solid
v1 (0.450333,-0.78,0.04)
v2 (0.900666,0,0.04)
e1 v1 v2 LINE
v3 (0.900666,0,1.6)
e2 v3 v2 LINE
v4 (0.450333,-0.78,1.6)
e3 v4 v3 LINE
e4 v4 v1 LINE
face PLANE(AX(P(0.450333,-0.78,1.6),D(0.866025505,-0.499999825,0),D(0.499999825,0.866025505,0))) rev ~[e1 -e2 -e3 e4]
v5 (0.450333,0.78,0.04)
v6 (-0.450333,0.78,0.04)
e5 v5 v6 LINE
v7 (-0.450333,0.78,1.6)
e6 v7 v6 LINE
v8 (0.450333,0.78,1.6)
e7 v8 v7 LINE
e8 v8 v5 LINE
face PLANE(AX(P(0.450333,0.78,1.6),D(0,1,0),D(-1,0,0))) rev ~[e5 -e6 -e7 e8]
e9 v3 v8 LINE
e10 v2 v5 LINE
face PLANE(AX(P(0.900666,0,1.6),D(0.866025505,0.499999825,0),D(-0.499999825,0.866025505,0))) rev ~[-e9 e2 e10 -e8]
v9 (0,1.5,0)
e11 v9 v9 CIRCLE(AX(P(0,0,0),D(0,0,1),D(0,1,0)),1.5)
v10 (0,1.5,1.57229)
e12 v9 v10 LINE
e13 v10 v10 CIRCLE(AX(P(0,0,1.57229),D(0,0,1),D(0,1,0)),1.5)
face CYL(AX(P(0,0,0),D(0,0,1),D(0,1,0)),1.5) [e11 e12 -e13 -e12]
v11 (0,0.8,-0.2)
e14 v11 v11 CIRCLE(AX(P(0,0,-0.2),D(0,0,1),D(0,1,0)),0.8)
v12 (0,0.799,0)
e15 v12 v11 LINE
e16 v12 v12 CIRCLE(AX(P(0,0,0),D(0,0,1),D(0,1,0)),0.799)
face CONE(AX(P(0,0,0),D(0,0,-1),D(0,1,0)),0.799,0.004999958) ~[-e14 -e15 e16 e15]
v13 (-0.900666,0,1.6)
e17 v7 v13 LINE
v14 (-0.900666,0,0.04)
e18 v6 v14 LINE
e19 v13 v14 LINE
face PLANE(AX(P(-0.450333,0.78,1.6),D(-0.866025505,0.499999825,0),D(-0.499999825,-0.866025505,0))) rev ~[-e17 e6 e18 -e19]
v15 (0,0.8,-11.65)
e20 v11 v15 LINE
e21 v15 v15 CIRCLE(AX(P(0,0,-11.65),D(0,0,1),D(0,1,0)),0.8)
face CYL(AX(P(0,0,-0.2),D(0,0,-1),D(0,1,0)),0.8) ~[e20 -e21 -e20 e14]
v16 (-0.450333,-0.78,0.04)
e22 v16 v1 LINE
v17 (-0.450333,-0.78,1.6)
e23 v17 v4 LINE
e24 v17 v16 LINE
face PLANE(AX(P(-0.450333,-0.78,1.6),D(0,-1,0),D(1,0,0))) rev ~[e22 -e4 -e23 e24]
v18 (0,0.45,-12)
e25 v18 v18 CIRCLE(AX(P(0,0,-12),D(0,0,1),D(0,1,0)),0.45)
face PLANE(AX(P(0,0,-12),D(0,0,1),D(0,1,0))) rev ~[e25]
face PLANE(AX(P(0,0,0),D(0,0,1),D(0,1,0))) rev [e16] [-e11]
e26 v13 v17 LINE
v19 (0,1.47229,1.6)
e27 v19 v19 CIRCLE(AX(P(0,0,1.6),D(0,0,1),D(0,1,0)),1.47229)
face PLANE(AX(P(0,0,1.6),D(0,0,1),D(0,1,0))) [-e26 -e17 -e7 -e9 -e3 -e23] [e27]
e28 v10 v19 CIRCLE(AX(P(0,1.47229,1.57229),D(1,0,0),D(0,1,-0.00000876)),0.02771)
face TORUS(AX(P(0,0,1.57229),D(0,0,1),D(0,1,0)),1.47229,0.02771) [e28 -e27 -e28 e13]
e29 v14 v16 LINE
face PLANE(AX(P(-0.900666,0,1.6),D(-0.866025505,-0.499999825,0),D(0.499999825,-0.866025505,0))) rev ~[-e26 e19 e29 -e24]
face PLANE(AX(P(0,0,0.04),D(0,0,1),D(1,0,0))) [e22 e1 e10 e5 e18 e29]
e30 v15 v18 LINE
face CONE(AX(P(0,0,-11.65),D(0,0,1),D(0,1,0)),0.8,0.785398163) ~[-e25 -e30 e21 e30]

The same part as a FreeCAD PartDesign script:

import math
import FreeCAD as App
import Part
import Sketcher
from FreeCAD import Vector
Q = App.Units.Quantity


def add_polygon(sketch, points):
    """Adds a closed chain of lines whose ends are joined by coincident constraints."""
    first, n = sketch.GeometryCount, len(points)
    for a, b in zip(points, points[1:] + points[:1]):
        sketch.addGeometry(Part.LineSegment(App.Vector(*a, 0), App.Vector(*b, 0)), False)
    for i in range(n):
        sketch.addConstraint(Sketcher.Constraint("Coincident", first + i, 2, first + (i + 1) % n, 1))

doc = App.newDocument("Part")
body = doc.addObject("PartDesign::Body", "Body")

# Sketch on YZ plane
sketch1 = body.newObject("Sketcher::SketchObject", "Sketch")
sketch1.AttachmentSupport = (doc.getObject("YZ_Plane"), [""])
sketch1.MapMode = "FlatFace"
sketch1.addGeometry([
    Part.LineSegment(Vector(0.799, 0, 0), Vector(1.5, 0, 0)),  # 0
    Part.LineSegment(Vector(1.5, 0, 0), Vector(1.5, 1.572, 0)),  # 1
    Part.ArcOfCircle(Part.Circle(Vector(1.472, 1.572, 0), Vector(0, 0, 1), 0.028), math.radians(0), math.radians(90)),  # 2
    Part.LineSegment(Vector(1.472, 1.6, 0), Vector(0, 1.6, 0)),  # 3
    Part.LineSegment(Vector(0, 1.6, 0), Vector(0, -12, 0)),  # 4
    Part.LineSegment(Vector(0, -12, 0), Vector(0.45, -12, 0)),  # 5
    Part.LineSegment(Vector(0.45, -12, 0), Vector(0.8, -11.65, 0)),  # 6
    Part.LineSegment(Vector(0.8, -11.65, 0), Vector(0.8, -0.2, 0)),  # 7
    Part.LineSegment(Vector(0.8, -0.2, 0), Vector(0.799, 0, 0)),  # 8
], False)
sketch1.addConstraint([
    Sketcher.Constraint("Coincident", 0, 2, 1, 1),
    Sketcher.Constraint("Coincident", 1, 2, 2, 1),
    Sketcher.Constraint("Coincident", 2, 2, 3, 1),
    Sketcher.Constraint("Coincident", 3, 2, 4, 1),
    Sketcher.Constraint("Coincident", 4, 2, 5, 1),
    Sketcher.Constraint("Coincident", 5, 2, 6, 1),
    Sketcher.Constraint("Coincident", 6, 2, 7, 1),
    Sketcher.Constraint("Coincident", 7, 2, 8, 1),
    Sketcher.Constraint("Coincident", 8, 2, 0, 1),
    Sketcher.Constraint("Horizontal", 0),
    Sketcher.Constraint("Vertical", 1),
    Sketcher.Constraint("Horizontal", 3),
    Sketcher.Constraint("Vertical", 4),
    Sketcher.Constraint("Horizontal", 5),
    Sketcher.Constraint("Vertical", 7),
    Sketcher.Constraint("PointOnObject", 0, 2, -1),
    Sketcher.Constraint("PointOnObject", 3, 2, -2),
    Sketcher.Constraint("Horizontal", 2, 3, 1, 2),
    Sketcher.Constraint("Angle", 6, Q("45 deg")),
    Sketcher.Constraint("DistanceY", 4, 2, 4, 1, Q("13.6 mm")),
    Sketcher.Constraint("DistanceY", 4, 2, -1, 1, Q("12 mm")),
    Sketcher.Constraint("DistanceX", 5, 1, 5, 2, Q("0.45 mm")),
    Sketcher.Constraint("DistanceY", 7, 1, 7, 2, Q("11.45 mm")),
    Sketcher.Constraint("DistanceX", -1, 1, 0, 2, Q("1.5 mm")),
    Sketcher.Constraint("DistanceX", -1, 1, 6, 2, Q("0.8 mm")),
    Sketcher.Constraint("DistanceX", 0, 1, 0, 2, Q("0.701 mm")),
    Sketcher.Constraint("Radius", 2, Q("0.02771 mm")),
    Sketcher.Constraint("DistanceX", 3, 2, 3, 1, Q("1.47229 mm")),
])
revolution = body.newObject("PartDesign::Revolution", "Revolution")
revolution.Profile = sketch1
revolution.ReferenceAxis = (sketch1, ["V_Axis"])
revolution.Angle = 360

# Sketch on XY plane
sketch2 = body.newObject("Sketcher::SketchObject", "Sketch001")
sketch2.AttachmentSupport = (doc.getObject("XY_Plane"), [""])
sketch2.MapMode = "FlatFace"
sketch2.AttachmentOffset = App.Placement(Vector(0, 0, 1.6), App.Rotation())
add_polygon(sketch2, [(0.9, 0), (0.5, 0.8), (-0.5, 0.8), (-0.9, 0), (-0.5, -0.8), (0.5, -0.8)])  # lines 0-5
sketch2.addConstraint([
    Sketcher.Constraint("Horizontal", 1),
    Sketcher.Constraint("Horizontal", 4),
    Sketcher.Constraint("Symmetric", 0, 2, 3, 2, -1, 1),
    Sketcher.Constraint("Symmetric", 2, 2, 5, 2, -1, 1),
    Sketcher.Constraint("PointOnObject", 2, 2, -1),
    Sketcher.Constraint("Parallel", 2, 5),
    Sketcher.Constraint("Vertical", 1, 2, 3, 2),
    Sketcher.Constraint("Angle", 0, Q("119.999988 deg")),
    Sketcher.Constraint("DistanceY", -1, 1, 0, 2, Q("0.78 mm")),
    Sketcher.Constraint("DistanceX", 2, 2, 0, 2, Q("1.350999 mm")),
])
pocket1 = body.newObject("PartDesign::Pocket", "Pocket")
pocket1.Profile = sketch2
pocket1.Length = 1.56

doc.recompute()
